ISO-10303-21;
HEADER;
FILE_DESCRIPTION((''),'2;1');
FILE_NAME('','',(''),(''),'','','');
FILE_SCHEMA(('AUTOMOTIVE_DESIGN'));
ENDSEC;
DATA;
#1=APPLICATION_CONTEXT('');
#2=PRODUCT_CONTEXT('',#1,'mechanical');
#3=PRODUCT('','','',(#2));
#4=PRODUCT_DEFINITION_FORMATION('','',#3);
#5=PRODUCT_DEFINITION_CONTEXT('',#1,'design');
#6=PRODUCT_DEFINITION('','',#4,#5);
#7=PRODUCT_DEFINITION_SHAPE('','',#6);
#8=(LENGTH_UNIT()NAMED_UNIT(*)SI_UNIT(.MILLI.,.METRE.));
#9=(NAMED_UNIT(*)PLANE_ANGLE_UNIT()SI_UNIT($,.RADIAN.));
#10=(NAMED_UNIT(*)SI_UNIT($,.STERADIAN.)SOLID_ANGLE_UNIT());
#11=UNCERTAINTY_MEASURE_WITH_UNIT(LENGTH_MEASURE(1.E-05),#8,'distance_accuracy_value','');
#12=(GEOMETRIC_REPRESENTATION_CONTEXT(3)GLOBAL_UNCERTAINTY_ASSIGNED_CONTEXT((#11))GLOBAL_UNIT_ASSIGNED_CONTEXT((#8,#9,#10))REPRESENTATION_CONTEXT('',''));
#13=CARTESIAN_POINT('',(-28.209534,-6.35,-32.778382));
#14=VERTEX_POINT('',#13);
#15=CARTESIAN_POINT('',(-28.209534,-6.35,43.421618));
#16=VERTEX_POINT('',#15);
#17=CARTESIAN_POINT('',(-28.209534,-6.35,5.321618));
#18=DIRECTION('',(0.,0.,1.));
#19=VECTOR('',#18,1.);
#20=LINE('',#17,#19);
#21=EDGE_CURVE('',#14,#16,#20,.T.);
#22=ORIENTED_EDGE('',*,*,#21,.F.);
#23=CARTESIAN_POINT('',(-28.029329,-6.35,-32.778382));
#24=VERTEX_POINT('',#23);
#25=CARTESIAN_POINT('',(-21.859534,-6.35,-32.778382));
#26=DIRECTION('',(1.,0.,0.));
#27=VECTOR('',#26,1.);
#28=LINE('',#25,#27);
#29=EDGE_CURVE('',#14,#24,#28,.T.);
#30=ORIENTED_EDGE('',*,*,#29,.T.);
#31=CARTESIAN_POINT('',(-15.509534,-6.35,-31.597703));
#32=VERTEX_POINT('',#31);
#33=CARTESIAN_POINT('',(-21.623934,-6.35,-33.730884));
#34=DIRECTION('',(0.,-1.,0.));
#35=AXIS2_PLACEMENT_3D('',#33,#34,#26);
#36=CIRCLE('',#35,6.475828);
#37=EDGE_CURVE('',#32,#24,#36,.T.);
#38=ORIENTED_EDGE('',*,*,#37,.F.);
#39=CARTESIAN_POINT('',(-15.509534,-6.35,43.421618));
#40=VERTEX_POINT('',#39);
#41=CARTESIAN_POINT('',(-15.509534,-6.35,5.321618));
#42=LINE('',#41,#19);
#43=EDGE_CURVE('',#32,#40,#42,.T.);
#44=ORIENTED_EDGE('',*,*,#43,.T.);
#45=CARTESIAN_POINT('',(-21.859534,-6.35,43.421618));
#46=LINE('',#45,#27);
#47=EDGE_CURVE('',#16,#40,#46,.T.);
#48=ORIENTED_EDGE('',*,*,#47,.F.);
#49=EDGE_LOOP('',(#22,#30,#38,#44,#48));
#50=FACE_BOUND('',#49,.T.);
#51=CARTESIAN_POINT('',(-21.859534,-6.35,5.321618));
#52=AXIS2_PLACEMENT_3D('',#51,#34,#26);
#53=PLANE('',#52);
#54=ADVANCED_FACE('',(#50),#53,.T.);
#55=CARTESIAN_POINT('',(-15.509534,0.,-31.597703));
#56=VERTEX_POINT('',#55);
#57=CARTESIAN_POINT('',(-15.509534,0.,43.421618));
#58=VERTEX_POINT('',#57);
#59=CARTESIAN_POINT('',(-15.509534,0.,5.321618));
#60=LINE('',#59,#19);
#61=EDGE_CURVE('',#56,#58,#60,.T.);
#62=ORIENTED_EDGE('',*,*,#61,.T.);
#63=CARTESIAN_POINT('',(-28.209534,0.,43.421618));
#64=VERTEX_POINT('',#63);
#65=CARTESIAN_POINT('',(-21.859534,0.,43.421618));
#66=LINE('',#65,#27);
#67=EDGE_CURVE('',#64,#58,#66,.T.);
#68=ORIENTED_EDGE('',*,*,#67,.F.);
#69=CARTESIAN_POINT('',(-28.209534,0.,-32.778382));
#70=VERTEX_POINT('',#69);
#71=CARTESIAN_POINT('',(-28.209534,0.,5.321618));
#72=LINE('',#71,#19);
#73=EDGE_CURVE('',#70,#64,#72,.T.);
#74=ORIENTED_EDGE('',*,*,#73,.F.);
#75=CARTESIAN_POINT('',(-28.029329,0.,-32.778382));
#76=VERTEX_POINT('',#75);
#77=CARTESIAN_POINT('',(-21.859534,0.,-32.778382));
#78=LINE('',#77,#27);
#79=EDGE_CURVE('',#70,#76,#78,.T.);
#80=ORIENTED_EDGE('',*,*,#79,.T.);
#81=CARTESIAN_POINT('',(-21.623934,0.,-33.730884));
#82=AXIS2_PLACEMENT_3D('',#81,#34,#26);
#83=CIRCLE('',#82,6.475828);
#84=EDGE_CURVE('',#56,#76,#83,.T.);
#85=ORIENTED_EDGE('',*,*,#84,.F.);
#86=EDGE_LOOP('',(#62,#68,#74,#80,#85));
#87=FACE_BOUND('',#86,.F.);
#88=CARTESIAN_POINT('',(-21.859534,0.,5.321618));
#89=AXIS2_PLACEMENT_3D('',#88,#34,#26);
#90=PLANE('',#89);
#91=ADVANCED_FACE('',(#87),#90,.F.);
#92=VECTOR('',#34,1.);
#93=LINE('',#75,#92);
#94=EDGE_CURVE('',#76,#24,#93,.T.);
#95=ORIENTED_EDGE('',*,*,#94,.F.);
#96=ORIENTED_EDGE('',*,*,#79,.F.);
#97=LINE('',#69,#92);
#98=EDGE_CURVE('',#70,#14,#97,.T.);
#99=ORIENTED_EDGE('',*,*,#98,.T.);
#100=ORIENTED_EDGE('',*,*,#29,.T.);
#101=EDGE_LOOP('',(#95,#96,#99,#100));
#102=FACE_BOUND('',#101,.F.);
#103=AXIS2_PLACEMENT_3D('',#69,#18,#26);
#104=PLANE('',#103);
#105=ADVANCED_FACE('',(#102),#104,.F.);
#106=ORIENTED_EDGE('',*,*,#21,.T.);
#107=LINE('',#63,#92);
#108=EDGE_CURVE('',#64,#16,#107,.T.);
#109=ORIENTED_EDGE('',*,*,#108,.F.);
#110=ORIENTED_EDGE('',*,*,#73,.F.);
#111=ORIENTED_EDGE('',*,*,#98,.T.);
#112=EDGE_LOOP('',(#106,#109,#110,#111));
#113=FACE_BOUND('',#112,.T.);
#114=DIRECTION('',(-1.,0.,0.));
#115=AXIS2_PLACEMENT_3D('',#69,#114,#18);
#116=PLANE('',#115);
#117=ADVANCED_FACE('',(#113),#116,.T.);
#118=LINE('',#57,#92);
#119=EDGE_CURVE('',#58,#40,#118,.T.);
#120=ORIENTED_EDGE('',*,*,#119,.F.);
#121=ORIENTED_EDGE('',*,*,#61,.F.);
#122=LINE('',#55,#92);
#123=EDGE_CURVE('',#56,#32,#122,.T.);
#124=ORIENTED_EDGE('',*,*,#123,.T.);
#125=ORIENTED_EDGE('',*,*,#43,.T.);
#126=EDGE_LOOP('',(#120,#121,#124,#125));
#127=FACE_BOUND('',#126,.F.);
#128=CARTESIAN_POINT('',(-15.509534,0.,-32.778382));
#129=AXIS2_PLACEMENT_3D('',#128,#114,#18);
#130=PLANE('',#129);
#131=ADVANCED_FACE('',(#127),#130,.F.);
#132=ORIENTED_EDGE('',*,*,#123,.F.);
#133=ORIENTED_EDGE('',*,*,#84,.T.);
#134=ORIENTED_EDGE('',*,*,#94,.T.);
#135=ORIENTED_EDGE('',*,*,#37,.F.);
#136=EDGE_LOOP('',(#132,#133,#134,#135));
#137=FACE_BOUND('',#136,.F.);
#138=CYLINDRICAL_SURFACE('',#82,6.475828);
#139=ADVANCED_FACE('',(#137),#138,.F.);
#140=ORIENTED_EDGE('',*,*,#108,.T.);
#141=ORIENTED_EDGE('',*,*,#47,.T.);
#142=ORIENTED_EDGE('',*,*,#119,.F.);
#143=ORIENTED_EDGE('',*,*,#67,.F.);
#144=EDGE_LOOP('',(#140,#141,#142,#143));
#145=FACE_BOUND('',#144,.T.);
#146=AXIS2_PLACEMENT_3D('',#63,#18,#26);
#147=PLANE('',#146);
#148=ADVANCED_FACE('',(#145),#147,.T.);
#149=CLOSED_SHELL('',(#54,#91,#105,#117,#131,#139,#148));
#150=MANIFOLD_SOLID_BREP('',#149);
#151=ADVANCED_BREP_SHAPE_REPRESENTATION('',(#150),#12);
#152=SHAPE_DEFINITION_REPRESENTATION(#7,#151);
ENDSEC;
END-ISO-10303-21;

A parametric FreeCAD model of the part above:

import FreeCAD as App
import Part
import Sketcher
Q = App.Units.Quantity

doc = App.newDocument("Part")
params = doc.addObject("Spreadsheet::Sheet", "Params")
for row, (alias, value) in enumerate([
    ("sketch1_height", "3 in"),
    ("sketch1_width", "0.5 in"),
    ("pad1_length", "0.25 in"),
    ("pocket1_length", "1 in"),
], start=1):
    params.set(f"A{row}", alias)
    params.set(f"B{row}", "=" + value)
    params.setAlias(f"B{row}", alias)

body = doc.addObject("PartDesign::Body", "Body")

# Sketch on XZ plane
sketch1 = body.newObject("Sketcher::SketchObject", "Sketch")
sketch1.AttachmentSupport = (doc.getObject("XZ_Plane"), [""])
sketch1.MapMode = "FlatFace"
sketch1.addGeometry(Part.LineSegment(App.Vector(-28, 43, 0), App.Vector(-28, -33, 0)), False)
sketch1.addGeometry(Part.LineSegment(App.Vector(-28, -33, 0), App.Vector(-16, -33, 0)), False)
sketch1.addGeometry(Part.LineSegment(App.Vector(-16, -33, 0), App.Vector(-16, 43, 0)), False)
sketch1.addGeometry(Part.LineSegment(App.Vector(-16, 43, 0), App.Vector(-28, 43, 0)), False)
sketch1.addConstraint(Sketcher.Constraint("Coincident", 0, 2, 1, 1))
sketch1.addConstraint(Sketcher.Constraint("Coincident", 1, 2, 2, 1))
sketch1.addConstraint(Sketcher.Constraint("Coincident", 2, 2, 3, 1))
sketch1.addConstraint(Sketcher.Constraint("Coincident", 3, 2, 0, 1))
sketch1.addConstraint(Sketcher.Constraint("Vertical", 0))
sketch1.addConstraint(Sketcher.Constraint("Horizontal", 1))
sketch1.addConstraint(Sketcher.Constraint("Vertical", 2))
sketch1.addConstraint(Sketcher.Constraint("Horizontal", 3))
sketch1.addConstraint(Sketcher.Constraint("DistanceY", 0, 2, 0, 1, Q("3 in")))
sketch1.addConstraint(Sketcher.Constraint("DistanceX", 1, 1, 1, 2, Q("0.5 in")))
sketch1.addConstraint(Sketcher.Constraint("DistanceY", -1, 1, 2, 2, 43.421618))
sketch1.addConstraint(Sketcher.Constraint("DistanceX", 0, 2, -1, 1, 28.209534))
sketch1.setExpression("Constraints[8]", "Params.sketch1_height")
sketch1.setExpression("Constraints[9]", "Params.sketch1_width")
pad1 = body.newObject("PartDesign::Pad", "Pad")
pad1.Profile = sketch1
pad1.setExpression("Length", "Params.pad1_length")

# Sketch on XZ plane
sketch2 = body.newObject("Sketcher::SketchObject", "Sketch001")
sketch2.AttachmentSupport = (doc.getObject("XZ_Plane"), [""])
sketch2.MapMode = "FlatFace"
sketch2.addGeometry(Part.Circle(App.Vector(-22, -34, 0), App.Vector(0, 0, 1), 6), False)
sketch2.addConstraint(Sketcher.Constraint("Diameter", 0, 12.951656))
sketch2.addConstraint(Sketcher.Constraint("DistanceX", 0, 3, -1, 1, 21.623934))
sketch2.addConstraint(Sketcher.Constraint("DistanceY", 0, 3, -1, 1, 33.730884))
pocket1 = body.newObject("PartDesign::Pocket", "Pocket")
pocket1.Profile = sketch2
pocket1.setExpression("Length", "Params.pocket1_length")
pocket1.Midplane = True

doc.recompute()
